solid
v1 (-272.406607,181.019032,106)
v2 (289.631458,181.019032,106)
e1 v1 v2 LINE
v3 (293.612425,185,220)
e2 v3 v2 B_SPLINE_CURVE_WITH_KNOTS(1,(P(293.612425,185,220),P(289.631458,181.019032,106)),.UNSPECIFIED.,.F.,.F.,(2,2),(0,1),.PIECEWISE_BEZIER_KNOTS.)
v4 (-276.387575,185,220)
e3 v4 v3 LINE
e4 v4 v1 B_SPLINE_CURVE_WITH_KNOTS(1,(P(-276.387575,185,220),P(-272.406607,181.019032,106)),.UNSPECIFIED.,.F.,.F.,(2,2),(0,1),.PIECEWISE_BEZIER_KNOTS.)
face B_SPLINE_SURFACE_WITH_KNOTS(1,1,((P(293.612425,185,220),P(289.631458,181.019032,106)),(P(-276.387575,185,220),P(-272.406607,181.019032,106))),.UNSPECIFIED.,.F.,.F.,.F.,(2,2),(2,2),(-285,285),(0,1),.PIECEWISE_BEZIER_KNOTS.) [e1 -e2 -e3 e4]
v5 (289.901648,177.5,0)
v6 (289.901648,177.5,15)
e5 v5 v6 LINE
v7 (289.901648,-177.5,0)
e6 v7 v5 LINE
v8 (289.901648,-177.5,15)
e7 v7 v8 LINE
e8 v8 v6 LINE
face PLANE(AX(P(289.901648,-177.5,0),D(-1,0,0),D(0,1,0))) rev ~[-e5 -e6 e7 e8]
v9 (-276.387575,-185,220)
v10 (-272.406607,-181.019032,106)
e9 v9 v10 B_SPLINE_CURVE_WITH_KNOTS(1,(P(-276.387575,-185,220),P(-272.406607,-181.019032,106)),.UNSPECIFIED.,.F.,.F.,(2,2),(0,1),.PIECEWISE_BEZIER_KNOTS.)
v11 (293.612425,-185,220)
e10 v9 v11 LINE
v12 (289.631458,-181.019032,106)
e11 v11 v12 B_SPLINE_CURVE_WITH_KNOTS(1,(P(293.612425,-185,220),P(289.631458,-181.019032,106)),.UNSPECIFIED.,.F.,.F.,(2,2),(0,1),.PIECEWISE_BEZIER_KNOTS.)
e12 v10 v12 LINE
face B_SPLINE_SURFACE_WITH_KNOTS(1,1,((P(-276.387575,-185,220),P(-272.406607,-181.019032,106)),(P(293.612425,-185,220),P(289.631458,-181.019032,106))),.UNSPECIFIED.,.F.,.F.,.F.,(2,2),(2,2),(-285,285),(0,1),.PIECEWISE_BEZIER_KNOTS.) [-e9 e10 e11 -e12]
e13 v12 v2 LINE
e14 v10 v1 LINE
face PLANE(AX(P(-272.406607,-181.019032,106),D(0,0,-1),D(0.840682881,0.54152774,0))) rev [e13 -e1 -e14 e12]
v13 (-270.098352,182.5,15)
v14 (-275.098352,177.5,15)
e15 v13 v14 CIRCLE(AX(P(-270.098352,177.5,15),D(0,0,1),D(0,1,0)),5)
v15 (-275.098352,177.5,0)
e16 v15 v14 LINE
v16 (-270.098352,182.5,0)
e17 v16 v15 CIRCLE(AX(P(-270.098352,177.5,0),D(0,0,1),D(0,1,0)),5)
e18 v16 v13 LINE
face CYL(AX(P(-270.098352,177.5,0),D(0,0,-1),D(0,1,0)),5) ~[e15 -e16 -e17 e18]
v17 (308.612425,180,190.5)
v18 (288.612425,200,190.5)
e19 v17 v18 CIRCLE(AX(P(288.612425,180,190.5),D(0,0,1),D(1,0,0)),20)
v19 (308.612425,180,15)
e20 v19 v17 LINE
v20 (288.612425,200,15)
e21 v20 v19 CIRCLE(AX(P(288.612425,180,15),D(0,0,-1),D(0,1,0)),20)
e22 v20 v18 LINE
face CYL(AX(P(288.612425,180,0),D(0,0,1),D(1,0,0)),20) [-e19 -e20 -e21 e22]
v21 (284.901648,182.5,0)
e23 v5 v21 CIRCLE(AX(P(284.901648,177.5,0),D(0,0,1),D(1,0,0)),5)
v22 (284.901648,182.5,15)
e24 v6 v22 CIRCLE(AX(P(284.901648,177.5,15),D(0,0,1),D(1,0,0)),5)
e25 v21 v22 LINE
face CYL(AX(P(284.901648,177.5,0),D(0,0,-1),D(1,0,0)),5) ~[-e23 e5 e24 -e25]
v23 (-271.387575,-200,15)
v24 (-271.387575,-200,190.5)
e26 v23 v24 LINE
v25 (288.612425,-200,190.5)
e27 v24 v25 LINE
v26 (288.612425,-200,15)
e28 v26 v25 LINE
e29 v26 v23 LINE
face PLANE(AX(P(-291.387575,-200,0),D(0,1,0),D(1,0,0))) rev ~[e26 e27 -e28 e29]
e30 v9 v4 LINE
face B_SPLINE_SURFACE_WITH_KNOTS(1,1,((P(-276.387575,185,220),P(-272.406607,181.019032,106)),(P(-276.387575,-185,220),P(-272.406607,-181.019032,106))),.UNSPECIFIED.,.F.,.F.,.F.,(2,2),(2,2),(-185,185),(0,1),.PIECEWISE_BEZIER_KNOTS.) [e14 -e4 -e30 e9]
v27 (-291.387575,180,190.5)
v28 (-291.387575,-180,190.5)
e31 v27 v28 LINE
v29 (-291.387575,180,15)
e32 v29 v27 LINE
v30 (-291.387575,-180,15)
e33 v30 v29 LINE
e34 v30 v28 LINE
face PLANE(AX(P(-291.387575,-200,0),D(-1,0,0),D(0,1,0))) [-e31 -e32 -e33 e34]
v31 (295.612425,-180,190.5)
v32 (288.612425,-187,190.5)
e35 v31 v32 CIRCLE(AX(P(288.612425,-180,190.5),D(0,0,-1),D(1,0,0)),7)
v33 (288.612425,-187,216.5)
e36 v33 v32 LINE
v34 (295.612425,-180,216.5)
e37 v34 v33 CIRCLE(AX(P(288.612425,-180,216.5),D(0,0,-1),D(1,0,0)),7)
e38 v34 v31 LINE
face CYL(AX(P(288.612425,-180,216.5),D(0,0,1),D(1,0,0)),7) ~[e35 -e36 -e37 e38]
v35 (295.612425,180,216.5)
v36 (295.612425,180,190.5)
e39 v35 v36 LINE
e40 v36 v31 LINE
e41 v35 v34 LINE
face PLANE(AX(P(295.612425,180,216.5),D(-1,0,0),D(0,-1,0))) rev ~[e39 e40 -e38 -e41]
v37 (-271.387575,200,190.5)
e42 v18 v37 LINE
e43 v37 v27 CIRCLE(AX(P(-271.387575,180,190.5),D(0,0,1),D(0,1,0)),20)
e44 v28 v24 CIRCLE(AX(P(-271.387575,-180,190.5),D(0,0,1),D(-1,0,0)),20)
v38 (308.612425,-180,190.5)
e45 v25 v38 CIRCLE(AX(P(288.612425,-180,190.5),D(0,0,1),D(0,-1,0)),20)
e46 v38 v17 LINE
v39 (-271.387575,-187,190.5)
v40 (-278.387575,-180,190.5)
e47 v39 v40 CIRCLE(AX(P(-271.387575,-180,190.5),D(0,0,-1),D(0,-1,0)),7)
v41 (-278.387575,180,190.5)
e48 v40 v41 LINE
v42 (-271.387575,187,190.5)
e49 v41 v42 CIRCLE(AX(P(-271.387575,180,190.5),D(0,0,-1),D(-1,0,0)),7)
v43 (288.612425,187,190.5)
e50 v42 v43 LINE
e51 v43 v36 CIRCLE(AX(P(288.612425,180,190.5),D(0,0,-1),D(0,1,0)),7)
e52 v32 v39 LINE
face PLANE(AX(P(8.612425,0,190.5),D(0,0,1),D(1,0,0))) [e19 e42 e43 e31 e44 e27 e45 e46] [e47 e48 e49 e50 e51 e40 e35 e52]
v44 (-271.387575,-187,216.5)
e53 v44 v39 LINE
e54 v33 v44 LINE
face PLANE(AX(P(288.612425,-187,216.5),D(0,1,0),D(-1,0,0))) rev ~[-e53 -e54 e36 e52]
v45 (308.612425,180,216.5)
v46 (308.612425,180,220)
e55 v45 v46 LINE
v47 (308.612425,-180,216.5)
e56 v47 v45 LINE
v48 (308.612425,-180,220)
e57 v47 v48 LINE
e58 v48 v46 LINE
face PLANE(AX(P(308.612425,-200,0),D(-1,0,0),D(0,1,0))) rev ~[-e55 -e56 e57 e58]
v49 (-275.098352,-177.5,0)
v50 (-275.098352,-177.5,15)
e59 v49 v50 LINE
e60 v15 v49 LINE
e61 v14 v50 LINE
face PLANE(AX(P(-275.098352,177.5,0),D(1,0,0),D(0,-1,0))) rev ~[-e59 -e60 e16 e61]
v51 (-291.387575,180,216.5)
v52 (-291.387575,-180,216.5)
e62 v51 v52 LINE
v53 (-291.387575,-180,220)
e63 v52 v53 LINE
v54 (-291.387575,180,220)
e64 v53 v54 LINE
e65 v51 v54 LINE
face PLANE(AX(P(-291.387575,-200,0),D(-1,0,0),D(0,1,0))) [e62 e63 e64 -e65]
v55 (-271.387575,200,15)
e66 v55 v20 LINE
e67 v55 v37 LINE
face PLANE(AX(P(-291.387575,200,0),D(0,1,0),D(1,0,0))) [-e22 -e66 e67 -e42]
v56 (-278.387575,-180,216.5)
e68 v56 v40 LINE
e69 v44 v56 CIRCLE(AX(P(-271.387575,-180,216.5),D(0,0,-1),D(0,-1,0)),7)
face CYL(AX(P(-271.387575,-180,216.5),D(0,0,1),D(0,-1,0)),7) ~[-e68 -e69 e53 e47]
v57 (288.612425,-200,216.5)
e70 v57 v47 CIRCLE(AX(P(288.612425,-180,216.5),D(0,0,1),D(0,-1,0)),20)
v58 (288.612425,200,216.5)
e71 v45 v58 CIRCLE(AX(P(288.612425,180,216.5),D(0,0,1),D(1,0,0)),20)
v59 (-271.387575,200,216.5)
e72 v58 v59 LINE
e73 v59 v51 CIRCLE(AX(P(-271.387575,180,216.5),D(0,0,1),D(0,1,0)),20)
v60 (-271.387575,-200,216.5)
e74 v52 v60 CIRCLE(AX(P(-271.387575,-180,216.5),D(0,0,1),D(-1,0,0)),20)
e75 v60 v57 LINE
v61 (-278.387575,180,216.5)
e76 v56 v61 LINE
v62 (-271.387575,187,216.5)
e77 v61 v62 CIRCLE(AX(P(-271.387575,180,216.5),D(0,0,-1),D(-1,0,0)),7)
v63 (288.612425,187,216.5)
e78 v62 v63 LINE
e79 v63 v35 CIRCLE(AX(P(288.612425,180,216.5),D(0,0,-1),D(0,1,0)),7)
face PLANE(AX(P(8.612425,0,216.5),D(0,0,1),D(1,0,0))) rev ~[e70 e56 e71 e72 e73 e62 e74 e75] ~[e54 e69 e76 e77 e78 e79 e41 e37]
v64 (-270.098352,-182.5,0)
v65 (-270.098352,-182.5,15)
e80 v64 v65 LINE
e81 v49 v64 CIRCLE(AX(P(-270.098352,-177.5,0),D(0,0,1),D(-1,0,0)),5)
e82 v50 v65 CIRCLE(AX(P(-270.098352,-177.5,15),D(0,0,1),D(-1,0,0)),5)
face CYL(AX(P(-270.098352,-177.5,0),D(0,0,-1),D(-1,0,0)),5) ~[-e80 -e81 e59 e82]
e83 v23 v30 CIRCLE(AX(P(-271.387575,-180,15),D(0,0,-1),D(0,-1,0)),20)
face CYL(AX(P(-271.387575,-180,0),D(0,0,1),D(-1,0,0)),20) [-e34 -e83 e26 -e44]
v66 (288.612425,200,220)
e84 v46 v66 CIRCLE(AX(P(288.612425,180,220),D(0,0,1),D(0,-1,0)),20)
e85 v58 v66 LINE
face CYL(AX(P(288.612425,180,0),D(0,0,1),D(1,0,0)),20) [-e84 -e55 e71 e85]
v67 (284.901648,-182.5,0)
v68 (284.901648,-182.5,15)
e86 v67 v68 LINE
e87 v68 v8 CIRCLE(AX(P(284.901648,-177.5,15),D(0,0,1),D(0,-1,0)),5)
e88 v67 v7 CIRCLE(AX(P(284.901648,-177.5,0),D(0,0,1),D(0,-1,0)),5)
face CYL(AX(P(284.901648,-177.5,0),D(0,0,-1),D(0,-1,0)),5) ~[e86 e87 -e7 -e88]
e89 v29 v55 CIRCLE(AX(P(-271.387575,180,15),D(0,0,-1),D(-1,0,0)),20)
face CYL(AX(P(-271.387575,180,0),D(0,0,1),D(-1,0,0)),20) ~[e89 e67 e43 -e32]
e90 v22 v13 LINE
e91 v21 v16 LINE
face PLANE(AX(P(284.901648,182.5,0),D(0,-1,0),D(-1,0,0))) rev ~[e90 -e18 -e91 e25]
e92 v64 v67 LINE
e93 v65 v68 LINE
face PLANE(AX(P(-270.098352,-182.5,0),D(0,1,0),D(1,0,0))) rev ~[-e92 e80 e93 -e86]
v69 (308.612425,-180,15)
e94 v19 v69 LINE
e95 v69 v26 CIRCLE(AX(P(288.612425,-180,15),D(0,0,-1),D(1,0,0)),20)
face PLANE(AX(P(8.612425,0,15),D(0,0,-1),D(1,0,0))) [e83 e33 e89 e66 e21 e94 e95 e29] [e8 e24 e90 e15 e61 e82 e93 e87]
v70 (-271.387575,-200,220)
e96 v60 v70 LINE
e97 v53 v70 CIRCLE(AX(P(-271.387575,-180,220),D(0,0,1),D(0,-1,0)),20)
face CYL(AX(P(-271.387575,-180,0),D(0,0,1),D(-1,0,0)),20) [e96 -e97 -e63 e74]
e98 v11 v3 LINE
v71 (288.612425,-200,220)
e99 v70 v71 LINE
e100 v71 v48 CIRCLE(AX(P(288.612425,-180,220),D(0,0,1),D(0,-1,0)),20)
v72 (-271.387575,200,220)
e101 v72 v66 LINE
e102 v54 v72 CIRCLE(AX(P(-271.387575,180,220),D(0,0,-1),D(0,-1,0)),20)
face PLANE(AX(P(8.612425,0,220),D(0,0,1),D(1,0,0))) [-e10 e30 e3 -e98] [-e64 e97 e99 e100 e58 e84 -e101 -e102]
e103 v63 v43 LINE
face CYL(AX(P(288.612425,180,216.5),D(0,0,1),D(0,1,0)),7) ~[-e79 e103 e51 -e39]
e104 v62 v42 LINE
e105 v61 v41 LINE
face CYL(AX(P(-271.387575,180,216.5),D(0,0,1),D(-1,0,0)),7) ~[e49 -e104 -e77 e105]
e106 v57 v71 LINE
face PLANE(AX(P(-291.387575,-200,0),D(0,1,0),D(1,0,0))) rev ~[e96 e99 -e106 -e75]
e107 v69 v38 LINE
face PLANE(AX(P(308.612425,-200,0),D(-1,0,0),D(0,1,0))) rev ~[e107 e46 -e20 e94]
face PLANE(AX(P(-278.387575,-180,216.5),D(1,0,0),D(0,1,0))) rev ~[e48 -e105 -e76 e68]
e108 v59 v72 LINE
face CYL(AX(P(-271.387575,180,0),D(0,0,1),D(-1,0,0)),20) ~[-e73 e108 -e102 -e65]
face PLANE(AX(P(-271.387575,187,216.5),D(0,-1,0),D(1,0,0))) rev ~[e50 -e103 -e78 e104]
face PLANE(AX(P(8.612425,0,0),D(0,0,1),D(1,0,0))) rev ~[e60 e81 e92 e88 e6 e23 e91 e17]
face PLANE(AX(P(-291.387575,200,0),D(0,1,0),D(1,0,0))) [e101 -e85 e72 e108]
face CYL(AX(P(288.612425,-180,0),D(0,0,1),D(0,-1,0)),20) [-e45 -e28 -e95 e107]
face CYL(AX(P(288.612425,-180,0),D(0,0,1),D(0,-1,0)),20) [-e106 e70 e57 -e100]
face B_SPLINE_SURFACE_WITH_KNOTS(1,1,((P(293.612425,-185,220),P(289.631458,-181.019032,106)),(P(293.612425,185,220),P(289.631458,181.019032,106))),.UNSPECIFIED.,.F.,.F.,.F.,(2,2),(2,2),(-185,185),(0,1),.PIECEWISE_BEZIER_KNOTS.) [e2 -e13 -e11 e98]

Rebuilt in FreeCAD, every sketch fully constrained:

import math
import FreeCAD as App
import Part
import Sketcher
Q = App.Units.Quantity


def edges_at(feature, points):
    """Names of the edges that pass closest to the given points."""
    edges = feature.Shape.Edges
    near = lambda p: min(range(len(edges)), key=lambda i: edges[i].distToShape(Part.Vertex(*p))[0])
    return sorted({f"Edge{near(p) + 1}" for p in points})


def add_polygon(sketch, points):
    """Adds a closed chain of lines whose ends are joined by coincident constraints."""
    first, n = sketch.GeometryCount, len(points)
    for a, b in zip(points, points[1:] + points[:1]):
        sketch.addGeometry(Part.LineSegment(App.Vector(*a, 0), App.Vector(*b, 0)), False)
    for i in range(n):
        sketch.addConstraint(Sketcher.Constraint("Coincident", first + i, 2, first + (i + 1) % n, 1))

doc = App.newDocument("Part")
body = doc.addObject("PartDesign::Body", "Body")

# Sketch on XY plane
sketch1 = body.newObject("Sketcher::SketchObject", "Sketch")
sketch1.AttachmentSupport = (doc.getObject("XY_Plane"), [""])
sketch1.MapMode = "FlatFace"
add_polygon(sketch1, [(-291.387575, 200), (-291.387575, -200), (308.612425, -200), (308.612425, 200)])  # lines 0-3
sketch1.addConstraint(Sketcher.Constraint("Vertical", 0))
sketch1.addConstraint(Sketcher.Constraint("Horizontal", 1))
sketch1.addConstraint(Sketcher.Constraint("Vertical", 2))
sketch1.addConstraint(Sketcher.Constraint("Horizontal", 3))
sketch1.addConstraint(Sketcher.Constraint("DistanceX", 1, 1, 1, 2, Q("600 mm")))
sketch1.addConstraint(Sketcher.Constraint("DistanceY", 0, 2, 0, 1, Q("400 mm")))
sketch1.addConstraint(Sketcher.Constraint("DistanceY", 0, 2, -1, 1, Q("200 mm")))
sketch1.addConstraint(Sketcher.Constraint("DistanceX", 0, 2, -1, 1, Q("291.387575 mm")))
pad1 = body.newObject("PartDesign::Pad", "Pad")
pad1.Profile = sketch1
pad1.Length = 220
doc.recompute()

fillet = body.newObject("PartDesign::Fillet", "Fillet")
fillet.Base = (pad1, edges_at(pad1, [
    (-291.388, -200, 110),
    (308.612, -200, 110),
    (308.612, 200, 110),
    (-291.388, 200, 110),
]))
fillet.Radius = 20

# Sketch on XY plane
sketch2 = body.newObject("Sketcher::SketchObject", "Sketch001")
sketch2.AttachmentSupport = (doc.getObject("XY_Plane"), [""])
sketch2.MapMode = "FlatFace"
sketch2.addGeometry(Part.ArcOfCircle(Part.Circle(App.Vector(288.612425, -180, 0), App.Vector(0, 0, 1), 20), math.radians(-90), math.radians(0)), False)
sketch2.addGeometry(Part.LineSegment(App.Vector(288.612425, -200, 0), App.Vector(-271.387575, -200, 0)), False)
sketch2.addGeometry(Part.ArcOfCircle(Part.Circle(App.Vector(-271.387575, -180, 0), App.Vector(0, 0, 1), 20), math.radians(180), math.radians(270)), False)
sketch2.addGeometry(Part.LineSegment(App.Vector(-291.387575, -180, 0), App.Vector(-291.387575, 180, 0)), False)
sketch2.addGeometry(Part.ArcOfCircle(Part.Circle(App.Vector(-271.387575, 180, 0), App.Vector(0, 0, 1), 20), math.radians(90), math.radians(180)), False)
sketch2.addGeometry(Part.LineSegment(App.Vector(-271.387575, 200, 0), App.Vector(288.612425, 200, 0)), False)
sketch2.addGeometry(Part.ArcOfCircle(Part.Circle(App.Vector(288.612425, 180, 0), App.Vector(0, 0, 1), 20), math.radians(0), math.radians(90)), False)
sketch2.addGeometry(Part.LineSegment(App.Vector(308.612425, 180, 0), App.Vector(308.612425, -180, 0)), False)
sketch2.addGeometry(Part.LineSegment(App.Vector(-275.098352, 177.5, 0), App.Vector(-275.098352, -177.5, 0)), False)
sketch2.addGeometry(Part.ArcOfCircle(Part.Circle(App.Vector(-270.098352, -177.5, 0), App.Vector(0, 0, 1), 5), math.radians(180), math.radians(270)), False)
sketch2.addGeometry(Part.LineSegment(App.Vector(-270.098352, -182.5, 0), App.Vector(284.901648, -182.5, 0)), False)
sketch2.addGeometry(Part.ArcOfCircle(Part.Circle(App.Vector(284.901648, -177.5, 0), App.Vector(0, 0, 1), 5), math.radians(-90), math.radians(0)), False)
sketch2.addGeometry(Part.LineSegment(App.Vector(289.901648, -177.5, 0), App.Vector(289.901648, 177.5, 0)), False)
sketch2.addGeometry(Part.ArcOfCircle(Part.Circle(App.Vector(284.901648, 177.5, 0), App.Vector(0, 0, 1), 5), math.radians(0), math.radians(90)), False)
sketch2.addGeometry(Part.LineSegment(App.Vector(284.901648, 182.5, 0), App.Vector(-270.098352, 182.5, 0)), False)
sketch2.addGeometry(Part.ArcOfCircle(Part.Circle(App.Vector(-270.098352, 177.5, 0), App.Vector(0, 0, 1), 5), math.radians(90), math.radians(180)), False)
sketch2.addConstraint(Sketcher.Constraint("Tangent", 0, 1, 1, 1))
sketch2.addConstraint(Sketcher.Constraint("Tangent", 1, 2, 2, 2))
sketch2.addConstraint(Sketcher.Constraint("Tangent", 2, 1, 3, 1))
sketch2.addConstraint(Sketcher.Constraint("Tangent", 3, 2, 4, 2))
sketch2.addConstraint(Sketcher.Constraint("Tangent", 4, 1, 5, 1))
sketch2.addConstraint(Sketcher.Constraint("Tangent", 5, 2, 6, 2))
sketch2.addConstraint(Sketcher.Constraint("Tangent", 6, 1, 7, 1))
sketch2.addConstraint(Sketcher.Constraint("Tangent", 7, 2, 0, 2))
sketch2.addConstraint(Sketcher.Constraint("Tangent", 8, 2, 9, 1))
sketch2.addConstraint(Sketcher.Constraint("Tangent", 9, 2, 10, 1))
sketch2.addConstraint(Sketcher.Constraint("Tangent", 10, 2, 11, 1))
sketch2.addConstraint(Sketcher.Constraint("Tangent", 11, 2, 12, 1))
sketch2.addConstraint(Sketcher.Constraint("Tangent", 12, 2, 13, 1))
sketch2.addConstraint(Sketcher.Constraint("Tangent", 13, 2, 14, 1))
sketch2.addConstraint(Sketcher.Constraint("Tangent", 14, 2, 15, 1))
sketch2.addConstraint(Sketcher.Constraint("Tangent", 15, 2, 8, 1))
sketch2.addConstraint(Sketcher.Constraint("Horizontal", 1))
sketch2.addConstraint(Sketcher.Constraint("Vertical", 3))
sketch2.addConstraint(Sketcher.Constraint("Horizontal", 5))
sketch2.addConstraint(Sketcher.Constraint("Vertical", 7))
sketch2.addConstraint(Sketcher.Constraint("Vertical", 8))
sketch2.addConstraint(Sketcher.Constraint("Horizontal", 10))
sketch2.addConstraint(Sketcher.Constraint("Vertical", 12))
sketch2.addConstraint(Sketcher.Constraint("Horizontal", 14))
sketch2.addConstraint(Sketcher.Constraint("Equal", 0, 2))
sketch2.addConstraint(Sketcher.Constraint("Equal", 2, 4))
sketch2.addConstraint(Sketcher.Constraint("Equal", 4, 6))
sketch2.addConstraint(Sketcher.Constraint("Equal", 9, 11))
sketch2.addConstraint(Sketcher.Constraint("Equal", 11, 13))
sketch2.addConstraint(Sketcher.Constraint("Equal", 13, 15))
sketch2.addConstraint(Sketcher.Constraint("Radius", 0, Q("20 mm")))
sketch2.addConstraint(Sketcher.Constraint("Radius", 9, Q("5 mm")))
sketch2.addConstraint(Sketcher.Constraint("DistanceX", 1, 2, 1, 1, Q("560 mm")))
sketch2.addConstraint(Sketcher.Constraint("DistanceX", 10, 1, 10, 2, Q("555 mm")))
sketch2.addConstraint(Sketcher.Constraint("DistanceY", 3, 1, 3, 2, Q("360 mm")))
sketch2.addConstraint(Sketcher.Constraint("DistanceY", 8, 2, 8, 1, Q("355 mm")))
sketch2.addConstraint(Sketcher.Constraint("DistanceY", 0, 3, -1, 1, Q("180 mm")))
sketch2.addConstraint(Sketcher.Constraint("DistanceY", 9, 3, -1, 1, Q("177.5 mm")))
sketch2.addConstraint(Sketcher.Constraint("DistanceX", 9, 3, -1, 1, Q("270.098352 mm")))
sketch2.addConstraint(Sketcher.Constraint("DistanceX", -1, 1, 0, 3, Q("288.612425 mm")))
pocket1 = body.newObject("PartDesign::Pocket", "Pocket")
pocket1.Profile = sketch2
pocket1.Length = 15
pocket1.Reversed = True

# Sketch on XY plane
sketch3 = body.newObject("Sketcher::SketchObject", "Sketch002")
sketch3.AttachmentSupport = (doc.getObject("XY_Plane"), [""])
sketch3.MapMode = "FlatFace"
sketch3.AttachmentOffset = App.Placement(App.Vector(0, 0, 216.5), App.Rotation())
sketch3.addGeometry(Part.ArcOfCircle(Part.Circle(App.Vector(-271.387575, 180, 0), App.Vector(0, 0, 1), 20), math.radians(90), math.radians(180)), False)
sketch3.addGeometry(Part.LineSegment(App.Vector(-291.387575, 180, 0), App.Vector(-291.387575, -180, 0)), False)
sketch3.addGeometry(Part.ArcOfCircle(Part.Circle(App.Vector(-271.387575, -180, 0), App.Vector(0, 0, 1), 20), math.radians(180), math.radians(270)), False)
sketch3.addGeometry(Part.LineSegment(App.Vector(-271.387575, -200, 0), App.Vector(288.612425, -200, 0)), False)
sketch3.addGeometry(Part.ArcOfCircle(Part.Circle(App.Vector(288.612425, -180, 0), App.Vector(0, 0, 1), 20), math.radians(-90), math.radians(0)), False)
sketch3.addGeometry(Part.LineSegment(App.Vector(308.612425, -180, 0), App.Vector(308.612425, 180, 0)), False)
sketch3.addGeometry(Part.ArcOfCircle(Part.Circle(App.Vector(288.612425, 180, 0), App.Vector(0, 0, 1), 20), math.radians(0), math.radians(90)), False)
sketch3.addGeometry(Part.LineSegment(App.Vector(288.612425, 200, 0), App.Vector(-271.387575, 200, 0)), False)
sketch3.addGeometry(Part.LineSegment(App.Vector(-278.387575, -180, 0), App.Vector(-278.387575, 180, 0)), False)
sketch3.addGeometry(Part.ArcOfCircle(Part.Circle(App.Vector(-271.387575, 180, 0), App.Vector(0, 0, 1), 7), math.radians(90), math.radians(180)), False)
sketch3.addGeometry(Part.LineSegment(App.Vector(-271.387575, 187, 0), App.Vector(288.612425, 187, 0)), False)
sketch3.addGeometry(Part.ArcOfCircle(Part.Circle(App.Vector(288.612425, 180, 0), App.Vector(0, 0, 1), 7), math.radians(0), math.radians(90)), False)
sketch3.addGeometry(Part.LineSegment(App.Vector(295.612425, 180, 0), App.Vector(295.612425, -180, 0)), False)
sketch3.addGeometry(Part.ArcOfCircle(Part.Circle(App.Vector(288.612425, -180, 0), App.Vector(0, 0, 1), 7), math.radians(-90), math.radians(0)), False)
sketch3.addGeometry(Part.LineSegment(App.Vector(288.612425, -187, 0), App.Vector(-271.387575, -187, 0)), False)
sketch3.addGeometry(Part.ArcOfCircle(Part.Circle(App.Vector(-271.387575, -180, 0), App.Vector(0, 0, 1), 7), math.radians(180), math.radians(270)), False)
sketch3.addConstraint(Sketcher.Constraint("Tangent", 0, 2, 1, 1))
sketch3.addConstraint(Sketcher.Constraint("Tangent", 1, 2, 2, 1))
sketch3.addConstraint(Sketcher.Constraint("Tangent", 2, 2, 3, 1))
sketch3.addConstraint(Sketcher.Constraint("Tangent", 3, 2, 4, 1))
sketch3.addConstraint(Sketcher.Constraint("Tangent", 4, 2, 5, 1))
sketch3.addConstraint(Sketcher.Constraint("Tangent", 5, 2, 6, 1))
sketch3.addConstraint(Sketcher.Constraint("Tangent", 6, 2, 7, 1))
sketch3.addConstraint(Sketcher.Constraint("Tangent", 7, 2, 0, 1))
sketch3.addConstraint(Sketcher.Constraint("Tangent", 8, 2, 9, 2))
sketch3.addConstraint(Sketcher.Constraint("Tangent", 9, 1, 10, 1))
sketch3.addConstraint(Sketcher.Constraint("Tangent", 10, 2, 11, 2))
sketch3.addConstraint(Sketcher.Constraint("Tangent", 11, 1, 12, 1))
sketch3.addConstraint(Sketcher.Constraint("Tangent", 12, 2, 13, 2))
sketch3.addConstraint(Sketcher.Constraint("Tangent", 13, 1, 14, 1))
sketch3.addConstraint(Sketcher.Constraint("Tangent", 14, 2, 15, 2))
sketch3.addConstraint(Sketcher.Constraint("Tangent", 15, 1, 8, 1))
sketch3.addConstraint(Sketcher.Constraint("Vertical", 1))
sketch3.addConstraint(Sketcher.Constraint("Horizontal", 3))
sketch3.addConstraint(Sketcher.Constraint("Vertical", 5))
sketch3.addConstraint(Sketcher.Constraint("Horizontal", 7))
sketch3.addConstraint(Sketcher.Constraint("Vertical", 8))
sketch3.addConstraint(Sketcher.Constraint("Horizontal", 10))
sketch3.addConstraint(Sketcher.Constraint("Vertical", 12))
sketch3.addConstraint(Sketcher.Constraint("Horizontal", 14))
sketch3.addConstraint(Sketcher.Constraint("Coincident", 9, 3, 0, 3))
sketch3.addConstraint(Sketcher.Constraint("Coincident", 11, 3, 6, 3))
sketch3.addConstraint(Sketcher.Constraint("Coincident", 13, 3, 4, 3))
sketch3.addConstraint(Sketcher.Constraint("Equal", 0, 2))
sketch3.addConstraint(Sketcher.Constraint("Equal", 2, 4))
sketch3.addConstraint(Sketcher.Constraint("Equal", 4, 6))
sketch3.addConstraint(Sketcher.Constraint("Equal", 13, 15))
sketch3.addConstraint(Sketcher.Constraint("Radius", 0, Q("20 mm")))
sketch3.addConstraint(Sketcher.Constraint("Radius", 9, Q("7 mm")))
sketch3.addConstraint(Sketcher.Constraint("DistanceX", 3, 1, 3, 2, Q("560 mm")))
sketch3.addConstraint(Sketcher.Constraint("DistanceY", 1, 2, 1, 1, Q("360 mm")))
sketch3.addConstraint(Sketcher.Constraint("DistanceY", -1, 1, 0, 3, Q("180 mm")))
sketch3.addConstraint(Sketcher.Constraint("DistanceX", 0, 3, -1, 1, Q("271.387575 mm")))
pocket2 = body.newObject("PartDesign::Pocket", "Pocket001")
pocket2.Profile = sketch3
pocket2.Length = 26

# Sketch on XY plane
sketch4 = body.newObject("Sketcher::SketchObject", "Sketch003")
sketch4.AttachmentSupport = (doc.getObject("XY_Plane"), [""])
sketch4.MapMode = "FlatFace"
sketch4.AttachmentOffset = App.Placement(App.Vector(0, 0, 220), App.Rotation())
add_polygon(sketch4, [(-276.387575, 185), (-276.387575, -185), (293.612425, -185), (293.612425, 185)])  # lines 0-3
sketch4.addConstraint(Sketcher.Constraint("Vertical", 0))
sketch4.addConstraint(Sketcher.Constraint("Horizontal", 1))
sketch4.addConstraint(Sketcher.Constraint("Vertical", 2))
sketch4.addConstraint(Sketcher.Constraint("Horizontal", 3))
sketch4.addConstraint(Sketcher.Constraint("DistanceX", 1, 1, 1, 2, Q("570 mm")))
sketch4.addConstraint(Sketcher.Constraint("DistanceY", 0, 2, 0, 1, Q("370 mm")))
sketch4.addConstraint(Sketcher.Constraint("DistanceY", 0, 2, -1, 1, Q("185 mm")))
sketch4.addConstraint(Sketcher.Constraint("DistanceX", 0, 2, -1, 1, Q("276.387575 mm")))
pocket3 = body.newObject("PartDesign::Pocket", "Pocket002")
pocket3.Profile = sketch4
pocket3.Length = 114
pocket3.TaperAngle = -2

doc.recompute()
